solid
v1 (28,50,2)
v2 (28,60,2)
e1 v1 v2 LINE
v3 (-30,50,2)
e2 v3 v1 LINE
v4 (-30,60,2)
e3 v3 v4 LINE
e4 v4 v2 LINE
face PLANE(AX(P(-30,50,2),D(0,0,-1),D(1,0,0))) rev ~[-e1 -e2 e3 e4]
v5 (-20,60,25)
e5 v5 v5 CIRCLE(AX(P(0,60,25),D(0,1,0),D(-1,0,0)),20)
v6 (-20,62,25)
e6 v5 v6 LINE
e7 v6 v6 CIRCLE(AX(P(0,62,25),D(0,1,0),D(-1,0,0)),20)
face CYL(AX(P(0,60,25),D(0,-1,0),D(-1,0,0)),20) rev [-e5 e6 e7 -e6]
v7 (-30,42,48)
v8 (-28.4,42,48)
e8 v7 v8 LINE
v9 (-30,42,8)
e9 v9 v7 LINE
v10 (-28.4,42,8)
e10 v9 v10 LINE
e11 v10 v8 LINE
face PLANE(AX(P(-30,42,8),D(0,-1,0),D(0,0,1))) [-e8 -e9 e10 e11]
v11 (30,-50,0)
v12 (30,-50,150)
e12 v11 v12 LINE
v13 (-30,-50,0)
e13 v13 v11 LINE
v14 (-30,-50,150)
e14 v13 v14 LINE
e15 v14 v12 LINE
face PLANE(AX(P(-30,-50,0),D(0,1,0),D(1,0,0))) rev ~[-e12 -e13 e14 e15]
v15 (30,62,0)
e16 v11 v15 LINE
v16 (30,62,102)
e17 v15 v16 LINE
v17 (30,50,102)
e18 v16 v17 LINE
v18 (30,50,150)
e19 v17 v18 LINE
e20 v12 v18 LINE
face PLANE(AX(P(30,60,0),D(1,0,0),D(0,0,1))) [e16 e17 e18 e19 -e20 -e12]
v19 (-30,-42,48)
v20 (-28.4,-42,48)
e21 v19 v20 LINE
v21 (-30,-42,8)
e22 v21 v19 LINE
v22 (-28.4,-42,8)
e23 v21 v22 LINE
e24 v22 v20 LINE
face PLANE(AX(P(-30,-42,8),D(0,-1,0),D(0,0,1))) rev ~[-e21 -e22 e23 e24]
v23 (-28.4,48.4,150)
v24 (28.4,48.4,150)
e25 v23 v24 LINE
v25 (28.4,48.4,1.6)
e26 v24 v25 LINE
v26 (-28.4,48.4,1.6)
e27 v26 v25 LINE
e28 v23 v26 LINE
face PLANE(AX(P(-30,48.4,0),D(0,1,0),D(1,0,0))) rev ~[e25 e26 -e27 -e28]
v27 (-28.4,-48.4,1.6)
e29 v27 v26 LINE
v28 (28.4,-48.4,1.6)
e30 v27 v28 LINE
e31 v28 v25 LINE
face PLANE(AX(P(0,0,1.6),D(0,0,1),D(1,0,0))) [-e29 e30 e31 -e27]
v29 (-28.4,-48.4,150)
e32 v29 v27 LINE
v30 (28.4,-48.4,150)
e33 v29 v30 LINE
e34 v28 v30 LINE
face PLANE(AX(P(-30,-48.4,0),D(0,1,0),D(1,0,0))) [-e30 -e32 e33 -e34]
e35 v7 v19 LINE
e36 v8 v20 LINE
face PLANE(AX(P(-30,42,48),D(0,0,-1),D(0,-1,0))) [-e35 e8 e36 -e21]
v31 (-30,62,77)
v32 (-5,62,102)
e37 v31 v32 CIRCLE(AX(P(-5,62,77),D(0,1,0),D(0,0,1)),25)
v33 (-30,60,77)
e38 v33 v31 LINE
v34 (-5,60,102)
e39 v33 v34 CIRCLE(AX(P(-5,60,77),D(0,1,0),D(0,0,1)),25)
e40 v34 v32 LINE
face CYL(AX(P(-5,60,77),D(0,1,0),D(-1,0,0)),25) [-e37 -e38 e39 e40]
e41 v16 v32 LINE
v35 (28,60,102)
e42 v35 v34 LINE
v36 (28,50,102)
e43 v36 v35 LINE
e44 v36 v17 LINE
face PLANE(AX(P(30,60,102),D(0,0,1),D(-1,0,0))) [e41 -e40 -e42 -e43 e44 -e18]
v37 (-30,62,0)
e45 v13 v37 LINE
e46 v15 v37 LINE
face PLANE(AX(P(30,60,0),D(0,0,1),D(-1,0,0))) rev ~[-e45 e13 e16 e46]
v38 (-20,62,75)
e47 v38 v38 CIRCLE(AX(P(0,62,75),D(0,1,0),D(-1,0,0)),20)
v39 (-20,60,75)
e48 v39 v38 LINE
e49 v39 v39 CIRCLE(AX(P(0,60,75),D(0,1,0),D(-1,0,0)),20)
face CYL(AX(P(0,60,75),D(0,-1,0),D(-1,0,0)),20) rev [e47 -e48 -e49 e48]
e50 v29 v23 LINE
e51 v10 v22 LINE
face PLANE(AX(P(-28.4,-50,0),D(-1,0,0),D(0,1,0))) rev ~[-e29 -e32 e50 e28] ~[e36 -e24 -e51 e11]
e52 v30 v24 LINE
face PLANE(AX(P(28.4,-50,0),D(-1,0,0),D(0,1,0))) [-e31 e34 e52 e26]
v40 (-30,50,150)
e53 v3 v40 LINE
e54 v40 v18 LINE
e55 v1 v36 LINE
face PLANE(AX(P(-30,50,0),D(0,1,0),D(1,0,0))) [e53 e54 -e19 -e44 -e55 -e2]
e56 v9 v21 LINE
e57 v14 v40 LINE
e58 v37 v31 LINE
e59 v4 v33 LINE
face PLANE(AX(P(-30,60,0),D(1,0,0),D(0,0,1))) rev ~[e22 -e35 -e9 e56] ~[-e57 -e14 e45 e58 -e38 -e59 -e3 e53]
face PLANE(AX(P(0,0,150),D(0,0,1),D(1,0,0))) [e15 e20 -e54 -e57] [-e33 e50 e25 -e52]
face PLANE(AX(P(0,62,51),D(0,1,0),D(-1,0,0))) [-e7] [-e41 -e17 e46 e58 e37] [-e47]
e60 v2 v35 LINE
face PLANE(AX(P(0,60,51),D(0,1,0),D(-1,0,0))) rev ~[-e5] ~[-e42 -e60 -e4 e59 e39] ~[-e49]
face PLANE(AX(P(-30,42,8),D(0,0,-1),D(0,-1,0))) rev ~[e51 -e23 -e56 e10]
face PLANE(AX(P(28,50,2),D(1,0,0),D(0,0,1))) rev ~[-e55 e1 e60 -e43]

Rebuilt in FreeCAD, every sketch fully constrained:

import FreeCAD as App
import Part
import Sketcher
from FreeCAD import Vector


def edges_at(feature, points):
    """Names of the edges that pass closest to the given points."""
    edges = feature.Shape.Edges
    near = lambda p: min(range(len(edges)), key=lambda i: edges[i].distToShape(Part.Vertex(*p))[0])
    return sorted({f"Edge{near(p) + 1}" for p in points})


def faces_at(feature, points):
    """Names of the faces that lie closest to the given points."""
    faces = feature.Shape.Faces
    near = lambda p: min(range(len(faces)), key=lambda i: faces[i].distToShape(Part.Vertex(*p))[0])
    return sorted({f"Face{near(p) + 1}" for p in points})


def add_polygon(sketch, points):
    """Adds a closed chain of lines whose ends are joined by coincident constraints."""
    first, n = sketch.GeometryCount, len(points)
    for a, b in zip(points, points[1:] + points[:1]):
        sketch.addGeometry(Part.LineSegment(App.Vector(*a, 0), App.Vector(*b, 0)), False)
    for i in range(n):
        sketch.addConstraint(Sketcher.Constraint("Coincident", first + i, 2, first + (i + 1) % n, 1))

doc = App.newDocument("Part")
body = doc.addObject("PartDesign::Body", "Body")

sketch1 = doc.addObject("Sketcher::SketchObject", "Sketch")
body.addObject(sketch1)
sketch1.AttachmentSupport = (doc.XY_Plane, [""])
sketch1.MapMode = "FlatFace"
add_polygon(sketch1, [(-30, 50), (-30, -50), (30, -50), (30, 50)])
sketch1.addConstraint([
    Sketcher.Constraint("Vertical", 0),
    Sketcher.Constraint("Horizontal", 1),
    Sketcher.Constraint("Vertical", 2),
    Sketcher.Constraint("Horizontal", 3),
    Sketcher.Constraint("Symmetric", 0, 2, 2, 2, -1, 1),
    Sketcher.Constraint("DistanceX", 1, 1, 1, 2, 60.0),
    Sketcher.Constraint("DistanceY", 0, 2, 0, 1, 100.0),
])
pad1 = doc.addObject("PartDesign::Pad", "Pad")
body.addObject(pad1)
pad1.Profile = sketch1
pad1.Length = 150
doc.recompute()

thickness = doc.addObject("PartDesign::Thickness", "Thickness")
body.addObject(thickness)
thickness.Base = (pad1, faces_at(pad1, [(0, 0, 150)]))
thickness.Value = 1.6
thickness.Reversed = True
thickness.Join = "Arc"

sketch2 = doc.addObject("Sketcher::SketchObject", "Sketch001")
body.addObject(sketch2)
sketch2.AttachmentSupport = (doc.YZ_Plane, [""])
sketch2.MapMode = "FlatFace"
sketch2.AttachmentOffset = App.Placement(Vector(0, 0, -30), App.Rotation())
add_polygon(sketch2, [(42, 48), (42, 8), (-42, 8), (-42, 48)])
sketch2.addConstraint([
    Sketcher.Constraint("Vertical", 0),
    Sketcher.Constraint("Horizontal", 1),
    Sketcher.Constraint("Vertical", 2),
    Sketcher.Constraint("Horizontal", 3),
    Sketcher.Constraint("DistanceX", 1, 2, 1, 1, 84.0),
    Sketcher.Constraint("DistanceY", 0, 2, 0, 1, 40.0),
    Sketcher.Constraint("DistanceX", -1, 1, 0, 2, 42.0),
    Sketcher.Constraint("DistanceY", -1, 1, 0, 2, 8.0),
])
pocket1 = doc.addObject("PartDesign::Pocket", "Pocket")
body.addObject(pocket1)
pocket1.Profile = sketch2
pocket1.Length = 1.6
pocket1.Reversed = True

sketch3 = doc.addObject("Sketcher::SketchObject", "Sketch002")
body.addObject(sketch3)
sketch3.AttachmentSupport = (doc.XZ_Plane, [""])
sketch3.MapMode = "FlatFace"
sketch3.AttachmentOffset = App.Placement(Vector(0, 0, -50), App.Rotation())
add_polygon(sketch3, [(30, 102), (30, 0), (-30, 0), (-30, 2), (28, 2), (28, 102)])
sketch3.addConstraint([
    Sketcher.Constraint("Vertical", 0),
    Sketcher.Constraint("Horizontal", 1),
    Sketcher.Constraint("Vertical", 2),
    Sketcher.Constraint("Horizontal", 3),
    Sketcher.Constraint("Vertical", 4),
    Sketcher.Constraint("Horizontal", 5),
    Sketcher.Constraint("Symmetric", 0, 2, 1, 2, -1, 1),
    Sketcher.Constraint("Equal", 5, 2),
    Sketcher.Constraint("DistanceX", 1, 2, 1, 1, 60.0),
    Sketcher.Constraint("DistanceX", 3, 1, 3, 2, 58.0),
    Sketcher.Constraint("DistanceY", 0, 2, 0, 1, 102.0),
])
pad2 = doc.addObject("PartDesign::Pad", "Pad001")
body.addObject(pad2)
pad2.Profile = sketch3
pad2.Length = 10
pad2.Reversed = True

sketch4 = doc.addObject("Sketcher::SketchObject", "Sketch003")
body.addObject(sketch4)
sketch4.AttachmentSupport = (doc.XZ_Plane, [""])
sketch4.MapMode = "FlatFace"
sketch4.AttachmentOffset = App.Placement(Vector(0, 0, -60), App.Rotation())
add_polygon(sketch4, [(30, 102), (30, 0), (-30, 0), (-30, 102)])
sketch4.addGeometry(Part.Circle(Vector(0, 25, 0), Vector(0, 0, 1), 20), False)
sketch4.addGeometry(Part.Circle(Vector(0, 75, 0), Vector(0, 0, 1), 20), False)
sketch4.addConstraint([
    Sketcher.Constraint("Vertical", 0),
    Sketcher.Constraint("Horizontal", 1),
    Sketcher.Constraint("Vertical", 2),
    Sketcher.Constraint("Horizontal", 3),
    Sketcher.Constraint("Equal", 4, 5),
    Sketcher.Constraint("Symmetric", 0, 2, 1, 2, -1, 1),
    Sketcher.Constraint("PointOnObject", 4, 3, -2),
    Sketcher.Constraint("PointOnObject", 5, 3, -2),
    Sketcher.Constraint("Diameter", 4, 40.0),
    Sketcher.Constraint("DistanceX", 1, 2, 1, 1, 60.0),
    Sketcher.Constraint("DistanceY", 0, 2, 0, 1, 102.0),
    Sketcher.Constraint("DistanceY", -1, 1, 4, 3, 25.0),
    Sketcher.Constraint("DistanceY", -1, 1, 5, 3, 75.0),
])
pad3 = doc.addObject("PartDesign::Pad", "Pad002")
body.addObject(pad3)
pad3.Profile = sketch4
pad3.Length = 2
pad3.Reversed = True
doc.recompute()

fillet = doc.addObject("PartDesign::Fillet", "Fillet")
body.addObject(fillet)
fillet.Base = (pad3, edges_at(pad3, [(-30, 61, 102)]))
fillet.Radius = 25

doc.recompute()
